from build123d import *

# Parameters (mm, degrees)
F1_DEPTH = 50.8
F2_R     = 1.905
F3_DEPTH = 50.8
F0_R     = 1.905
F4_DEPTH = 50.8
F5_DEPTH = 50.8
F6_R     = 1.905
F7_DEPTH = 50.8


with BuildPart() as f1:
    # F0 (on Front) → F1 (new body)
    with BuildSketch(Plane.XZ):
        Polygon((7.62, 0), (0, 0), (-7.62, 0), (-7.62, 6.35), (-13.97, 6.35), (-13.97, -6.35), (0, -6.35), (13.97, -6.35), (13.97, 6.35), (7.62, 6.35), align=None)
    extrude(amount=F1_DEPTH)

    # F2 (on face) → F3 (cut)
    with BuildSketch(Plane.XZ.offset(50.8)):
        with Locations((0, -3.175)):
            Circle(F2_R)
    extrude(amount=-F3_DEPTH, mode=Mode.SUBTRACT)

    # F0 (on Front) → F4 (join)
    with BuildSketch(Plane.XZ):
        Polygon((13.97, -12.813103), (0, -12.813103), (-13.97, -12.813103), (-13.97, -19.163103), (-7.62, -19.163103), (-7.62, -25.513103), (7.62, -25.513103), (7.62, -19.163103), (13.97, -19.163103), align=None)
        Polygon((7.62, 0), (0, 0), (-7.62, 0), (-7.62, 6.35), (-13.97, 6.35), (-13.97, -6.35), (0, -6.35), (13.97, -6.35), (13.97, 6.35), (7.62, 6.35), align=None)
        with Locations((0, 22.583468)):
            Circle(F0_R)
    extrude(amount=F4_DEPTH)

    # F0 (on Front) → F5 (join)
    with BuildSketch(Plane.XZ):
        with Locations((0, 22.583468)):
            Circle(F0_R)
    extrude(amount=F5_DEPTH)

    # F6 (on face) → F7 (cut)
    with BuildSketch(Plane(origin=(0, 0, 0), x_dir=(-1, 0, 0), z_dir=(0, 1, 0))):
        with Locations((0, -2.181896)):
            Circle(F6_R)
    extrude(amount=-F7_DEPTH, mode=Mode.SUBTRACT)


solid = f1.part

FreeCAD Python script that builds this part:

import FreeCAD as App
import Part
import Sketcher
from FreeCAD import Vector
Q = App.Units.Quantity

doc = App.newDocument("Part")
body = doc.addObject("PartDesign::Body", "Body")
body.AllowCompound = True

# Sketch on XZ plane
sketch1 = doc.addObject("Sketcher::SketchObject", "Sketch")
body.addObject(sketch1)
sketch1.AttachmentSupport = (doc.XZ_Plane, [""])
sketch1.MapMode = "FlatFace"
sketch1.addGeometry([
    Part.LineSegment(Vector(8, 0, 0), Vector(-8, 0, 0)),  # 0
    Part.LineSegment(Vector(-8, 0, 0), Vector(-8, 6, 0)),  # 1
    Part.LineSegment(Vector(-8, 6, 0), Vector(-14, 6, 0)),  # 2
    Part.LineSegment(Vector(-14, 6, 0), Vector(-14, -6, 0)),  # 3
    Part.LineSegment(Vector(-14, -6, 0), Vector(14, -6, 0)),  # 4
    Part.LineSegment(Vector(14, -6, 0), Vector(14, 6, 0)),  # 5
    Part.LineSegment(Vector(14, 6, 0), Vector(8, 6, 0)),  # 6
    Part.LineSegment(Vector(8, 6, 0), Vector(8, 0, 0)),  # 7
], False)
sketch1.addConstraint([
    Sketcher.Constraint("Coincident", 0, 2, 1, 1),
    Sketcher.Constraint("Coincident", 1, 2, 2, 1),
    Sketcher.Constraint("Coincident", 2, 2, 3, 1),
    Sketcher.Constraint("Coincident", 3, 2, 4, 1),
    Sketcher.Constraint("Coincident", 4, 2, 5, 1),
    Sketcher.Constraint("Coincident", 5, 2, 6, 1),
    Sketcher.Constraint("Coincident", 6, 2, 7, 1),
    Sketcher.Constraint("Coincident", 7, 2, 0, 1),
    Sketcher.Constraint("Horizontal", 0),
    Sketcher.Constraint("Vertical", 1),
    Sketcher.Constraint("Horizontal", 2),
    Sketcher.Constraint("Vertical", 3),
    Sketcher.Constraint("Horizontal", 4),
    Sketcher.Constraint("Vertical", 5),
    Sketcher.Constraint("Horizontal", 6),
    Sketcher.Constraint("Vertical", 7),
    Sketcher.Constraint("Symmetric", 2, 2, 4, 2, -1, 1),
    Sketcher.Constraint("Symmetric", 0, 2, 7, 2, -1, 1),
    Sketcher.Constraint("Horizontal", 2, 2, 5, 2),
    Sketcher.Constraint("Equal", 6, 1),
    Sketcher.Constraint("DistanceX", 0, 2, 0, 1, Q("0.6 in")),
    Sketcher.Constraint("DistanceX", 4, 1, 4, 2, Q("1.1 in")),
])
pad1 = doc.addObject("PartDesign::Pad", "Pad")
body.addObject(pad1)
pad1.Profile = sketch1
pad1.Length = Q("2 in")

# Sketch on XZ plane
sketch2 = doc.addObject("Sketcher::SketchObject", "Sketch001")
body.addObject(sketch2)
sketch2.AttachmentSupport = (doc.XZ_Plane, [""])
sketch2.MapMode = "FlatFace"
sketch2.AttachmentOffset = App.Placement(Vector(0, 0, 2 * 25.4), App.Rotation())
sketch2.addGeometry(Part.Circle(Vector(0, -3.2, 0), Vector(0, 0, 1), 1.9), False)
sketch2.addConstraint([
    Sketcher.Constraint("PointOnObject", 0, 3, -2),
    Sketcher.Constraint("Diameter", 0, Q("0.15 in")),
    Sketcher.Constraint("DistanceY", 0, 3, -1, 1, Q("0.125 in")),
])
pocket1 = doc.addObject("PartDesign::Pocket", "Pocket")
body.addObject(pocket1)
pocket1.Profile = sketch2
pocket1.Length = Q("2 in")

# Sketch on XZ plane
sketch3 = doc.addObject("Sketcher::SketchObject", "Sketch002")
body.addObject(sketch3)
sketch3.AttachmentSupport = (doc.XZ_Plane, [""])
sketch3.MapMode = "FlatFace"
sketch3.addGeometry([
    Part.LineSegment(Vector(14, -12.8, 0), Vector(-14, -12.8, 0)),  # 0
    Part.LineSegment(Vector(-14, -12.8, 0), Vector(-14, -19.2, 0)),  # 1
    Part.LineSegment(Vector(-14, -19.2, 0), Vector(-7.6, -19.2, 0)),  # 2
    Part.LineSegment(Vector(-7.6, -19.2, 0), Vector(-7.6, -25.5, 0)),  # 3
    Part.LineSegment(Vector(-7.6, -25.5, 0), Vector(7.6, -25.5, 0)),  # 4
    Part.LineSegment(Vector(7.6, -25.5, 0), Vector(7.6, -19.2, 0)),  # 5
    Part.LineSegment(Vector(7.6, -19.2, 0), Vector(14, -19.2, 0)),  # 6
    Part.LineSegment(Vector(14, -19.2, 0), Vector(14, -12.8, 0)),  # 7
    Part.LineSegment(Vector(7.6, 0, 0), Vector(-7.6, 0, 0)),  # 8
    Part.LineSegment(Vector(-7.6, 0, 0), Vector(-7.6, 6.3, 0)),  # 9
    Part.LineSegment(Vector(-7.6, 6.3, 0), Vector(-14, 6.3, 0)),  # 10
    Part.LineSegment(Vector(-14, 6.3, 0), Vector(-14, -6.3, 0)),  # 11
    Part.LineSegment(Vector(-14, -6.3, 0), Vector(14, -6.3, 0)),  # 12
    Part.LineSegment(Vector(14, -6.3, 0), Vector(14, 6.3, 0)),  # 13
    Part.LineSegment(Vector(14, 6.3, 0), Vector(7.6, 6.3, 0)),  # 14
    Part.LineSegment(Vector(7.6, 6.3, 0), Vector(7.6, 0, 0)),  # 15
    Part.Circle(Vector(0, 22.6, 0), Vector(0, 0, 1), 1.9),  # 16
], False)
sketch3.addConstraint([
    Sketcher.Constraint("Coincident", 0, 2, 1, 1),
    Sketcher.Constraint("Coincident", 1, 2, 2, 1),
    Sketcher.Constraint("Coincident", 2, 2, 3, 1),
    Sketcher.Constraint("Coincident", 3, 2, 4, 1),
    Sketcher.Constraint("Coincident", 4, 2, 5, 1),
    Sketcher.Constraint("Coincident", 5, 2, 6, 1),
    Sketcher.Constraint("Coincident", 6, 2, 7, 1),
    Sketcher.Constraint("Coincident", 7, 2, 0, 1),
    Sketcher.Constraint("Coincident", 8, 2, 9, 1),
    Sketcher.Constraint("Coincident", 9, 2, 10, 1),
    Sketcher.Constraint("Coincident", 10, 2, 11, 1),
    Sketcher.Constraint("Coincident", 11, 2, 12, 1),
    Sketcher.Constraint("Coincident", 12, 2, 13, 1),
    Sketcher.Constraint("Coincident", 13, 2, 14, 1),
    Sketcher.Constraint("Coincident", 14, 2, 15, 1),
    Sketcher.Constraint("Coincident", 15, 2, 8, 1),
    Sketcher.Constraint("Horizontal", 0),
    Sketcher.Constraint("Vertical", 1),
    Sketcher.Constraint("Horizontal", 2),
    Sketcher.Constraint("Vertical", 3),
    Sketcher.Constraint("Horizontal", 4),
    Sketcher.Constraint("Vertical", 5),
    Sketcher.Constraint("Horizontal", 6),
    Sketcher.Constraint("Vertical", 7),
    Sketcher.Constraint("Horizontal", 8),
    Sketcher.Constraint("Vertical", 9),
    Sketcher.Constraint("Horizontal", 10),
    Sketcher.Constraint("Vertical", 11),
    Sketcher.Constraint("Horizontal", 12),
    Sketcher.Constraint("Vertical", 13),
    Sketcher.Constraint("Horizontal", 14),
    Sketcher.Constraint("Vertical", 15),
    Sketcher.Constraint("Symmetric", 10, 2, 12, 2, -1, 1),
    Sketcher.Constraint("Symmetric", 8, 2, 15, 2, -1, 1),
    Sketcher.Constraint("Symmetric", 2, 2, 5, 2, -2),
    Sketcher.Constraint("PointOnObject", 16, 3, -2),
    Sketcher.Constraint("Horizontal", 10, 2, 13, 2),
    Sketcher.Constraint("Vertical", 3, 2, 8, 2),
    Sketcher.Constraint("Vertical", 1, 2, 10, 2),
    Sketcher.Constraint("Vertical", 7, 2, 12, 2),
    Sketcher.Constraint("Equal", 14, 1),
    Sketcher.Constraint("Equal", 1, 3),
    Sketcher.Constraint("Equal", 7, 9),
    Sketcher.Constraint("Diameter", 16, Q("0.15 in")),
    Sketcher.Constraint("DistanceX", 0, 2, 0, 1, Q("1.1 in")),
    Sketcher.Constraint("DistanceX", 4, 1, 4, 2, Q("0.6 in")),
    Sketcher.Constraint("DistanceY", -1, 1, 16, 3, 22.583468),
    Sketcher.Constraint("DistanceY", 0, 2, 16, 3, 35.396571),
])
pad2 = doc.addObject("PartDesign::Pad", "Pad001")
body.addObject(pad2)
pad2.Profile = sketch3
pad2.Length = Q("2 in")

# Sketch on XZ plane
sketch4 = doc.addObject("Sketcher::SketchObject", "Sketch003")
body.addObject(sketch4)
sketch4.AttachmentSupport = (doc.XZ_Plane, [""])
sketch4.MapMode = "FlatFace"
sketch4.addGeometry(Part.Circle(Vector(0, 22.6, 0), Vector(0, 0, 1), 1.9), False)
sketch4.addConstraint([
    Sketcher.Constraint("PointOnObject", 0, 3, -2),
    Sketcher.Constraint("Diameter", 0, Q("0.15 in")),
    Sketcher.Constraint("DistanceY", -1, 1, 0, 3, 22.583468),
])
pad3 = doc.addObject("PartDesign::Pad", "Pad002")
body.addObject(pad3)
pad3.Profile = sketch4
pad3.Length = Q("2 in")

# Sketch on XZ plane
sketch5 = doc.addObject("Sketcher::SketchObject", "Sketch004")
body.addObject(sketch5)
sketch5.AttachmentSupport = (doc.XZ_Plane, [""])
sketch5.MapMode = "FlatFace"
sketch5.addGeometry(Part.Circle(Vector(0, -2.2, 0), Vector(0, 0, 1), 1.9), False)
sketch5.addConstraint([
    Sketcher.Constraint("PointOnObject", 0, 3, -2),
    Sketcher.Constraint("Diameter", 0, Q("0.15 in")),
    Sketcher.Constraint("DistanceY", 0, 3, -1, 1, 2.181896),
])
pocket2 = doc.addObject("PartDesign::Pocket", "Pocket001")
body.addObject(pocket2)
pocket2.Profile = sketch5
pocket2.Length = Q("2 in")
pocket2.Reversed = True

doc.recompute()
